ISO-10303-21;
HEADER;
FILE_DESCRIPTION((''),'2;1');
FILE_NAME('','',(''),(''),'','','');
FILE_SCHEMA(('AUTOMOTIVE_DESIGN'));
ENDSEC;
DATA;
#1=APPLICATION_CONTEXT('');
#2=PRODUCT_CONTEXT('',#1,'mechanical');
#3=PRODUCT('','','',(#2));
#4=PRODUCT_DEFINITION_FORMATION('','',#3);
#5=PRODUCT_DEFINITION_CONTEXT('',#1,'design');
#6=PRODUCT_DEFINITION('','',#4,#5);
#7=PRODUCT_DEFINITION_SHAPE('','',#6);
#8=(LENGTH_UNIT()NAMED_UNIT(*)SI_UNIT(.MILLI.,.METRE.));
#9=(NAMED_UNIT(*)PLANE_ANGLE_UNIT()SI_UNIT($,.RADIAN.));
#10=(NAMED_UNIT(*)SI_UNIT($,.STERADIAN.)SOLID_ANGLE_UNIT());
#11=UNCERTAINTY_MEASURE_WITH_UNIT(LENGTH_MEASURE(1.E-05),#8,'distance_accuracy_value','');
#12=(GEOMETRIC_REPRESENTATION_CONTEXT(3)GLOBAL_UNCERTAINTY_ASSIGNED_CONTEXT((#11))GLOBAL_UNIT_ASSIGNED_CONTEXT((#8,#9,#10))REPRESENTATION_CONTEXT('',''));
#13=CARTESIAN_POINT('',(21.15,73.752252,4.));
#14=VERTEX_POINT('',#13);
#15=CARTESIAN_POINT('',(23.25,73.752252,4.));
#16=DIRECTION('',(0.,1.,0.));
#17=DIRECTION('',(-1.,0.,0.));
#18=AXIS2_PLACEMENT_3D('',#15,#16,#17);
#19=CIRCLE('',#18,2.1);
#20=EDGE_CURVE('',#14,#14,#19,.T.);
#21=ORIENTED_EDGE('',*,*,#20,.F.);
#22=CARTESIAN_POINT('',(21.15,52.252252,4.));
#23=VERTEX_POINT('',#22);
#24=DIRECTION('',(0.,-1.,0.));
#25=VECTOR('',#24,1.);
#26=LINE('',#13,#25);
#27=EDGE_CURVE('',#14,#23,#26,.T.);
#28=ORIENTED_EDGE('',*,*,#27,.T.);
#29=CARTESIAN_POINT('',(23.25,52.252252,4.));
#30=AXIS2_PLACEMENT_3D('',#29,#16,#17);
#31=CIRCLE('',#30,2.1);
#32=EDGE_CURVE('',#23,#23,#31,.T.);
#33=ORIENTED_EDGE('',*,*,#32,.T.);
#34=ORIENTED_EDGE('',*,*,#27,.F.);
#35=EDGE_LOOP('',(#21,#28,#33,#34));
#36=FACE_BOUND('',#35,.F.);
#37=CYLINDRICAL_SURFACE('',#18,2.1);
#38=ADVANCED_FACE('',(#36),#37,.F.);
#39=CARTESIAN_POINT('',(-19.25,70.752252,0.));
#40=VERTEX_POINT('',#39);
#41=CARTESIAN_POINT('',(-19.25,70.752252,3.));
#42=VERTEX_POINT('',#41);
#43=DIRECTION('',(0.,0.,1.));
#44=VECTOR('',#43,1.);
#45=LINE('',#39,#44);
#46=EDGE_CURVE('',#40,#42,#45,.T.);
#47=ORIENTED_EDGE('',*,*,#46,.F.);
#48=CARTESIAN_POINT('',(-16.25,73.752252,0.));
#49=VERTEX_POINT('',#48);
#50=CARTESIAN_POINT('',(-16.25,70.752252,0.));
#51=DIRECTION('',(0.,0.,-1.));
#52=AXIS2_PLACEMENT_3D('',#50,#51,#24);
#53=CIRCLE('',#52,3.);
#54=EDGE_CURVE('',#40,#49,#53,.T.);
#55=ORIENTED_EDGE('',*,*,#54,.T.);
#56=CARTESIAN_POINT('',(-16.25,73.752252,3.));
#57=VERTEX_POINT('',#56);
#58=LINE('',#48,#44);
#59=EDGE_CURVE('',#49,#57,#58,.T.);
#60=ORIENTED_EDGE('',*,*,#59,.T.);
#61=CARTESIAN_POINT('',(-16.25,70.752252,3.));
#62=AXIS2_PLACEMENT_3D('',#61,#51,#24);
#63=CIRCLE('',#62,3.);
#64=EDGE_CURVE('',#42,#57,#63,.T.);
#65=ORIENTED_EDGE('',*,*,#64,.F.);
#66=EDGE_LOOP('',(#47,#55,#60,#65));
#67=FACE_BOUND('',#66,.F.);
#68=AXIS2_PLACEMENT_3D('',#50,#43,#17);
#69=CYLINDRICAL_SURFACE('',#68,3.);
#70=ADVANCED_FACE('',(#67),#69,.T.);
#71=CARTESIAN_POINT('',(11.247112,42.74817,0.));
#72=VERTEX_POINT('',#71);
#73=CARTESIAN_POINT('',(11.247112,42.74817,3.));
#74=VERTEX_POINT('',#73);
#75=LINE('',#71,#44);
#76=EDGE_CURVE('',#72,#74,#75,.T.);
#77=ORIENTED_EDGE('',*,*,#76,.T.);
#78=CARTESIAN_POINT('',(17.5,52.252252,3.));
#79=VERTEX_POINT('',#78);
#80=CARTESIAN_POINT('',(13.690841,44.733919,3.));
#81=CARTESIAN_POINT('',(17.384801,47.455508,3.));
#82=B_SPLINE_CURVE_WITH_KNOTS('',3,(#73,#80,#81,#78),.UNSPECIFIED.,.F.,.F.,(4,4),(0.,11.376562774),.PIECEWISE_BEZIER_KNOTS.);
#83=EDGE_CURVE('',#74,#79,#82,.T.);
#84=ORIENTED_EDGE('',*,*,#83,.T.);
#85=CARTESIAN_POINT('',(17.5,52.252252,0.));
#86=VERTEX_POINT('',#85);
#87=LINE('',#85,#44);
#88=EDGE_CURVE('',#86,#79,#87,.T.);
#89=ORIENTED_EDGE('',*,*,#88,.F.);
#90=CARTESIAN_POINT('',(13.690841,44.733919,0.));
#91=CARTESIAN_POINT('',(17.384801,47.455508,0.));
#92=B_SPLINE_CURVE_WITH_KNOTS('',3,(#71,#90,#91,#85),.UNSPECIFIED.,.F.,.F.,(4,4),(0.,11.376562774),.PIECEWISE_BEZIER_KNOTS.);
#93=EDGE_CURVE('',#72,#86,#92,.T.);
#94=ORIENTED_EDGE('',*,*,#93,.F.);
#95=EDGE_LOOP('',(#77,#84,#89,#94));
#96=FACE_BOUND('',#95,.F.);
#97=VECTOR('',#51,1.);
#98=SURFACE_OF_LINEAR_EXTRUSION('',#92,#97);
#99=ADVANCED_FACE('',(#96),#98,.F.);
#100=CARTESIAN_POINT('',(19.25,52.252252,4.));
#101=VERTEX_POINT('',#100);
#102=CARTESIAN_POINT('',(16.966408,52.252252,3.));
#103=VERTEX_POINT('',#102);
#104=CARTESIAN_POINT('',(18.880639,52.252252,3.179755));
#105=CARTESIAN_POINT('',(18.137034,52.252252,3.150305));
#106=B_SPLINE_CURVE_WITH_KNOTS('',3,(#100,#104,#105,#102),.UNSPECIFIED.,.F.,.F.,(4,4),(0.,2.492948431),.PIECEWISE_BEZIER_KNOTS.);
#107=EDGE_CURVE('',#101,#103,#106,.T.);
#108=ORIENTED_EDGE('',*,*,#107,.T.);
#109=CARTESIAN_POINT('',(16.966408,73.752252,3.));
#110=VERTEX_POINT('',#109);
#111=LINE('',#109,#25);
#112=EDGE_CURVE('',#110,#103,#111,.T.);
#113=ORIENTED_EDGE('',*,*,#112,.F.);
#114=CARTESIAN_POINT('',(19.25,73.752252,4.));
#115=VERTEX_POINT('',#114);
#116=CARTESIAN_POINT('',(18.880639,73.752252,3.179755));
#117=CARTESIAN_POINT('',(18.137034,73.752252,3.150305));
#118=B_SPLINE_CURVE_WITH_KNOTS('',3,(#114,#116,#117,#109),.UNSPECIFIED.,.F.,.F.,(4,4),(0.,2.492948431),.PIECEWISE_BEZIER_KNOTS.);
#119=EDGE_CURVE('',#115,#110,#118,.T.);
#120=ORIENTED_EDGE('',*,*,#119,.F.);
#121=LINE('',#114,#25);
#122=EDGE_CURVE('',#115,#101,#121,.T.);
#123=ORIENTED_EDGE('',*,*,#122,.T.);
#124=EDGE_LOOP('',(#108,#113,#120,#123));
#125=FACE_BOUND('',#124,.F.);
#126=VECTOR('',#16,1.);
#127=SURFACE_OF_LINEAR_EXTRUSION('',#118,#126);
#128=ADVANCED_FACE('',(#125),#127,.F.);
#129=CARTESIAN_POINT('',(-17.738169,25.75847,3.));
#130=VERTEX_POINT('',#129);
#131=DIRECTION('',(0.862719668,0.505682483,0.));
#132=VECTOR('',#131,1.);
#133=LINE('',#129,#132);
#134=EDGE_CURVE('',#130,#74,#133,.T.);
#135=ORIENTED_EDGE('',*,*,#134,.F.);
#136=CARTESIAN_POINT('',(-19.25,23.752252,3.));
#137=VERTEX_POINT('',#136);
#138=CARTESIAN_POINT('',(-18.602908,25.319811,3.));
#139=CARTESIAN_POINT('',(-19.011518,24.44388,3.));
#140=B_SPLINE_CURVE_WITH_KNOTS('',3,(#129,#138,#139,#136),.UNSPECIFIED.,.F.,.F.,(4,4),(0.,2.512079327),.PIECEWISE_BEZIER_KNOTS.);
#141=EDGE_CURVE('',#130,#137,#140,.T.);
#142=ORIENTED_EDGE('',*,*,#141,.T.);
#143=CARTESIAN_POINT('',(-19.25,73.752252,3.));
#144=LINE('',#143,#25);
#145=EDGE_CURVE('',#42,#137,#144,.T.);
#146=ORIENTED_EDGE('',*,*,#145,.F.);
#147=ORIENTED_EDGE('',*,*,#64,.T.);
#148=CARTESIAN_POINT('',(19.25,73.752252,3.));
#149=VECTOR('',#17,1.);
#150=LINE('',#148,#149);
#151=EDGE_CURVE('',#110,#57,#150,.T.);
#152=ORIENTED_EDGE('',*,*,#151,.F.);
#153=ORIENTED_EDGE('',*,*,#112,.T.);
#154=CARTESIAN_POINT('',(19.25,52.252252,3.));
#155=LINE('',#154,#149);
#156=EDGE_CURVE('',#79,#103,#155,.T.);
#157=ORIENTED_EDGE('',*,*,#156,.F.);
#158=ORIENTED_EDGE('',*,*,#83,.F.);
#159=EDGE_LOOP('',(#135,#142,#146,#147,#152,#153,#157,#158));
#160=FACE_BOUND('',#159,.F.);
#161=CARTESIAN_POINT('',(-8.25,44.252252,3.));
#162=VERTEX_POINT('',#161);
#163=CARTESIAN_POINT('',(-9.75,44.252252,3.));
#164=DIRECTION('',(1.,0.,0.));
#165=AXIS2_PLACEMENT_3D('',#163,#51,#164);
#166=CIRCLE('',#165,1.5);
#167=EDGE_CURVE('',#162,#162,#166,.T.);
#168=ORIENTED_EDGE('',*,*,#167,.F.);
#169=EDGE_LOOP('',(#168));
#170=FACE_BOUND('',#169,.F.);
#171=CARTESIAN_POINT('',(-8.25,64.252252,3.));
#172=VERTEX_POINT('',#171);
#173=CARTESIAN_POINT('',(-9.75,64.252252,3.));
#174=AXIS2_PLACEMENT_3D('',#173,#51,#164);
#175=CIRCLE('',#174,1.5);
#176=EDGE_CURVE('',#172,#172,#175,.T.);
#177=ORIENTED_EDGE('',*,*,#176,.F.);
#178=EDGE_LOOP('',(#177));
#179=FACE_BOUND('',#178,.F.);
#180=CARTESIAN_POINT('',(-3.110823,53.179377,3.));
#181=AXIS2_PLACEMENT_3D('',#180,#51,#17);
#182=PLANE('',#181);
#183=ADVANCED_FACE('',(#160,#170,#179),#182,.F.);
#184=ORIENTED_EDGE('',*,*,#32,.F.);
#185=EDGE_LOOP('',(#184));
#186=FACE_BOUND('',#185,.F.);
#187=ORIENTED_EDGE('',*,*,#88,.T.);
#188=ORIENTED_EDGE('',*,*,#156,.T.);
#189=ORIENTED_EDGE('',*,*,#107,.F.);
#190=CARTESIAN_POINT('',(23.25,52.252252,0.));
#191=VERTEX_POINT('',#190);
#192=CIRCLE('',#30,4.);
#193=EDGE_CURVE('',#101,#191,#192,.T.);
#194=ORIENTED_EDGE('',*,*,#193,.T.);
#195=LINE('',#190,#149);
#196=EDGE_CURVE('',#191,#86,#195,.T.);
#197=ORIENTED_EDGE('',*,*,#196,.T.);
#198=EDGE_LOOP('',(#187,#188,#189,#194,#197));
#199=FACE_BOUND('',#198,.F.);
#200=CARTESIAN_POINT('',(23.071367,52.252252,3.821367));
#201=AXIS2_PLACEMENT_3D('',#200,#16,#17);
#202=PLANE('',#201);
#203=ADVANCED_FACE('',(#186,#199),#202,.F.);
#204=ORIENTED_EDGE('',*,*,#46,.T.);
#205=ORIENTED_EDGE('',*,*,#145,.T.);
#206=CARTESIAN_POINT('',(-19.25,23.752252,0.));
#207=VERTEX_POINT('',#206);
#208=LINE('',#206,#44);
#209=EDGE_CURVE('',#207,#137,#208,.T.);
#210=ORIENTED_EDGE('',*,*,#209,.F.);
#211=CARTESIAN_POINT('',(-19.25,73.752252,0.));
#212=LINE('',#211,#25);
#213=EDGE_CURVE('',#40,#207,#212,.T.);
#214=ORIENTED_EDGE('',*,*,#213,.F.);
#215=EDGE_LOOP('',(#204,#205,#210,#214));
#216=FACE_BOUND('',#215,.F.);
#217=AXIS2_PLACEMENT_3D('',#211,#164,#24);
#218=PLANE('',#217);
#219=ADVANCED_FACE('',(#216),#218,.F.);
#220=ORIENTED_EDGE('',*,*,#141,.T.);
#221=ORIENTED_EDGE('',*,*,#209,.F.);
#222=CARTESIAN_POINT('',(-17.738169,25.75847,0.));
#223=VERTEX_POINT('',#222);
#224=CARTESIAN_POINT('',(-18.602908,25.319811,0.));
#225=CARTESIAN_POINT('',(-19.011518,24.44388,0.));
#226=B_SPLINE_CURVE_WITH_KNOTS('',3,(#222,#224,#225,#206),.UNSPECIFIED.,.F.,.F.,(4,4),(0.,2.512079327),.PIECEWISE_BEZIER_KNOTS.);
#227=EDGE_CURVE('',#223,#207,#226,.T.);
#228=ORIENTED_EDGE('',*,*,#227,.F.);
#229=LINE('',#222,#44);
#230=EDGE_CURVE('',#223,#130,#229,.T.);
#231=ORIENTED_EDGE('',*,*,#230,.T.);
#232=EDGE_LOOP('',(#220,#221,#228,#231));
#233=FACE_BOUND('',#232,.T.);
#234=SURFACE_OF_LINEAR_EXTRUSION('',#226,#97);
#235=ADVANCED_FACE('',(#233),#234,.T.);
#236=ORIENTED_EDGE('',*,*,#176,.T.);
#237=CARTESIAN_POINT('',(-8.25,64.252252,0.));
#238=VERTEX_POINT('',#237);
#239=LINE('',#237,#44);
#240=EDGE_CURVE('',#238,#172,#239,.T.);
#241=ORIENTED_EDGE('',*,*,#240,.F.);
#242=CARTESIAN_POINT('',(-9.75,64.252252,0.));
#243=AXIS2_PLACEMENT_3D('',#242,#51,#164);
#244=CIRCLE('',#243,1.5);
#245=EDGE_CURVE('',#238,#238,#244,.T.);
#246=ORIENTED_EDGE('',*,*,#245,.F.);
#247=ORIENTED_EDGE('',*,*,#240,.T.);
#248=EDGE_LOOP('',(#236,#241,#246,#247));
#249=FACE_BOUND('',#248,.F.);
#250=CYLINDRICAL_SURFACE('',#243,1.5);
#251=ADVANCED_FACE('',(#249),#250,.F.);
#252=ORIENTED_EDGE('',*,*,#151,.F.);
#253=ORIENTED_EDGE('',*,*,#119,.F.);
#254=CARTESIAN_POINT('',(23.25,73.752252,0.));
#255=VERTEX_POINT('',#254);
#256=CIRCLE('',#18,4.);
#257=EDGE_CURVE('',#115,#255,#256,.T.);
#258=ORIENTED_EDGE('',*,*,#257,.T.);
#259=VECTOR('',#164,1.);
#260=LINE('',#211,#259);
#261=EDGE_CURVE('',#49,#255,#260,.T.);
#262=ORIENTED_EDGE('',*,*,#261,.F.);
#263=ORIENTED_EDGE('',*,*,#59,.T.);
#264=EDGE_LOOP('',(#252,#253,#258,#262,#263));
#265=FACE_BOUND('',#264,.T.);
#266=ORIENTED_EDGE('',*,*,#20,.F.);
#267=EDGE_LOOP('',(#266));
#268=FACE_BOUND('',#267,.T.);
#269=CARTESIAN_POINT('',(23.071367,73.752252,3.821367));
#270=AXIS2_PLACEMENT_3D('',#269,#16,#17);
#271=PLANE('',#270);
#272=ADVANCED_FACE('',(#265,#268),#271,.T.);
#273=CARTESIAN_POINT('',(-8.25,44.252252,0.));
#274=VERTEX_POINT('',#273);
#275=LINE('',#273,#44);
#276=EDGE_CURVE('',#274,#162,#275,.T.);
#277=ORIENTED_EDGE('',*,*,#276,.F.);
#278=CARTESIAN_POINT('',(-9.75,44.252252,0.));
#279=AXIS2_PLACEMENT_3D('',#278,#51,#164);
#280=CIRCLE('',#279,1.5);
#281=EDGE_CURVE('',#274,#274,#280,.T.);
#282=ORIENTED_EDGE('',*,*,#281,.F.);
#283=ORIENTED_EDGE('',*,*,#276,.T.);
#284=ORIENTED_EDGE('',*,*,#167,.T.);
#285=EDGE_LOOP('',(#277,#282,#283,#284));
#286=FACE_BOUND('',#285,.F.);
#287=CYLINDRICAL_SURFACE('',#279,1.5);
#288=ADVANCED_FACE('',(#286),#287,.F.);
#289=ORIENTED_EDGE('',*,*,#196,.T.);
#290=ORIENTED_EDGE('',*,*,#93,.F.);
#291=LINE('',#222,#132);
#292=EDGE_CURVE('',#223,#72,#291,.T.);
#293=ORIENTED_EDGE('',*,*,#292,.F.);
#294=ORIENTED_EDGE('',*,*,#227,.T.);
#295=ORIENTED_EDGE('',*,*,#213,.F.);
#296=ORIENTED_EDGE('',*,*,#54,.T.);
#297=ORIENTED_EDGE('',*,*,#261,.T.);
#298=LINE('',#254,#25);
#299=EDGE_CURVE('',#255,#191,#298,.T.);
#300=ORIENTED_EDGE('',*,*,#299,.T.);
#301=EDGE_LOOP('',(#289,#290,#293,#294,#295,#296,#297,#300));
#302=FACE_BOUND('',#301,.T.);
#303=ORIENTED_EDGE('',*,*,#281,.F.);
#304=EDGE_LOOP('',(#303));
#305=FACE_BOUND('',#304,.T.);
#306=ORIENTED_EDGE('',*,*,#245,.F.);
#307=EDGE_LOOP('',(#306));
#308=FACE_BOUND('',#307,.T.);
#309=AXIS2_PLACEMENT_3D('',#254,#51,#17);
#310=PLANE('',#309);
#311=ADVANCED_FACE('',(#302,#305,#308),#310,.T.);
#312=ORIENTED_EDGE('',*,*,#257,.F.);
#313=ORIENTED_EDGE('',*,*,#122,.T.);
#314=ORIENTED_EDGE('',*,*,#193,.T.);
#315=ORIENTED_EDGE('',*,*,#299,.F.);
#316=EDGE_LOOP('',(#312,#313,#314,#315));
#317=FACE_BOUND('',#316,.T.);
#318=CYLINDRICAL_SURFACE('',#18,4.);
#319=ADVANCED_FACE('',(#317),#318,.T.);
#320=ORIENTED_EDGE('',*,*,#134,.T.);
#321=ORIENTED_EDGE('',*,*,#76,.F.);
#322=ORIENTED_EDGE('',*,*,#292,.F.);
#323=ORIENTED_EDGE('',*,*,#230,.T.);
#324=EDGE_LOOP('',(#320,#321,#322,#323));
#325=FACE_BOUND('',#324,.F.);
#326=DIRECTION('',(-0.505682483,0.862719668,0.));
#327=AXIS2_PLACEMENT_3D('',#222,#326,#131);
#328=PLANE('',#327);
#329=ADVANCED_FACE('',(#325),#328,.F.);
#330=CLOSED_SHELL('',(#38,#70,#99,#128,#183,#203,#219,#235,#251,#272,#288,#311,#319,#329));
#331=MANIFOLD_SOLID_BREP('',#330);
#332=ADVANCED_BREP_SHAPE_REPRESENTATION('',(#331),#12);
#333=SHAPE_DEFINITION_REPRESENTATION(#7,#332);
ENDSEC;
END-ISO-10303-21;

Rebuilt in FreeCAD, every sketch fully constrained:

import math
import FreeCAD as App
import Part
import Sketcher

V = App.Vector


def edges_at(feature, points):
    """Names of the edges that pass closest to the given points."""
    edges = feature.Shape.Edges
    near = lambda p: min(range(len(edges)), key=lambda i: edges[i].distToShape(Part.Vertex(*p))[0])
    return sorted({f"Edge{near(p) + 1}" for p in points})

doc = App.newDocument("Part")
body = doc.addObject("PartDesign::Body", "Body")

# Sketch on XY plane
sketch1 = body.newObject("Sketcher::SketchObject", "Sketch")
sketch1.AttachmentSupport = (doc.getObject("XY_Plane"), [""])
sketch1.MapMode = "FlatFace"
sketch1.addGeometry(Part.BSplineCurve([V(-17.738169, 25.75847, 0), V(-18.602908, 25.319811, 0), V(-19.011518, 24.44388, 0), V(-19.25, 23.752252, 0)], [4, 4], [0, 2.512079327], False, 3, [1, 1, 1, 1], False), False)
sketch1.addGeometry(Part.LineSegment(V(-17.738169, 25.75847, 0), V(11.247112, 42.74817, 0)), False)
sketch1.addGeometry(Part.BSplineCurve([V(11.247112, 42.74817, 0), V(13.690841, 44.733919, 0), V(17.384801, 47.455508, 0), V(17.5, 52.252252, 0)], [4, 4], [0, 11.376562774], False, 3, [1, 1, 1, 1], False), False)
sketch1.addGeometry(Part.LineSegment(V(17.5, 52.252252, 0), V(19.25, 52.252252, 0)), False)
sketch1.addGeometry(Part.LineSegment(V(19.25, 52.252252, 0), V(19.25, 73.752252, 0)), False)
sketch1.addGeometry(Part.LineSegment(V(19.25, 73.752252, 0), V(-19.25, 73.752252, 0)), False)
sketch1.addGeometry(Part.LineSegment(V(-19.25, 73.752252, 0), V(-19.25, 23.752252, 0)), False)
sketch1.addConstraint(Sketcher.Constraint("Block", 0))
sketch1.addConstraint(Sketcher.Constraint("Block", 2))
sketch1.addConstraint(Sketcher.Constraint("Coincident", 0, 1, 1, 1))
sketch1.addConstraint(Sketcher.Constraint("Coincident", 1, 2, 2, 1))
sketch1.addConstraint(Sketcher.Constraint("Coincident", 2, 2, 3, 1))
sketch1.addConstraint(Sketcher.Constraint("Coincident", 3, 2, 4, 1))
sketch1.addConstraint(Sketcher.Constraint("Coincident", 4, 2, 5, 1))
sketch1.addConstraint(Sketcher.Constraint("Coincident", 5, 2, 6, 1))
sketch1.addConstraint(Sketcher.Constraint("Coincident", 6, 2, 0, 2))
sketch1.addConstraint(Sketcher.Constraint("Horizontal", 3))
sketch1.addConstraint(Sketcher.Constraint("Vertical", 4))
sketch1.addConstraint(Sketcher.Constraint("Horizontal", 5))
sketch1.addConstraint(Sketcher.Constraint("Vertical", 6))
sketch1.addConstraint(Sketcher.Constraint("DistanceY", 6, 2, 6, 1, 50.0))
sketch1.addConstraint(Sketcher.Constraint("DistanceX", 5, 2, 5, 1, 38.5))
pad1 = body.newObject("PartDesign::Pad", "Pad")
pad1.Profile = sketch1
pad1.Length = 3

# Sketch on XZ plane
sketch2 = body.newObject("Sketcher::SketchObject", "Sketch001")
sketch2.AttachmentSupport = (doc.getObject("XZ_Plane"), [""])
sketch2.MapMode = "FlatFace"
sketch2.AttachmentOffset = App.Placement(V(0, 0, -73.752252), App.Rotation())
sketch2.addGeometry(Part.ArcOfCircle(Part.Circle(V(23.25, 4, 0), V(0, 0, 1), 4), math.radians(-90), math.radians(180)), False)
sketch2.addGeometry(Part.LineSegment(V(23.25, 0, 0), V(19.25, 0, 0)), False)
sketch2.addGeometry(Part.LineSegment(V(19.25, 0, 0), V(19.25, 3, 0)), False)
sketch2.addGeometry(Part.LineSegment(V(19.25, 3, 0), V(16.966408, 3, 0)), False)
sketch2.addGeometry(Part.BSplineCurve([V(19.25, 4, 0), V(18.880639, 3.179755, 0), V(18.137034, 3.150305, 0), V(16.966408, 3, 0)], [4, 4], [0, 2.492948431], False, 3, [1, 1, 1, 1], False), False)
sketch2.addGeometry(Part.Circle(V(23.25, 4, 0), V(0, 0, 1), 2.1), False)
sketch2.addConstraint(Sketcher.Constraint("Block", 4))
sketch2.addConstraint(Sketcher.Constraint("Tangent", 0, 1, 1, 1))
sketch2.addConstraint(Sketcher.Constraint("Coincident", 1, 2, 2, 1))
sketch2.addConstraint(Sketcher.Constraint("Coincident", 2, 2, 3, 1))
sketch2.addConstraint(Sketcher.Constraint("Coincident", 3, 2, 4, 2))
sketch2.addConstraint(Sketcher.Constraint("Coincident", 4, 1, 0, 2))
sketch2.addConstraint(Sketcher.Constraint("Horizontal", 1))
sketch2.addConstraint(Sketcher.Constraint("Vertical", 2))
sketch2.addConstraint(Sketcher.Constraint("Horizontal", 3))
sketch2.addConstraint(Sketcher.Constraint("Coincident", 5, 3, 0, 3))
sketch2.addConstraint(Sketcher.Constraint("PointOnObject", 0, 1, -1))
sketch2.addConstraint(Sketcher.Constraint("Radius", 0, 4.0))
sketch2.addConstraint(Sketcher.Constraint("Diameter", 5, 4.2))
sketch2.addConstraint(Sketcher.Constraint("DistanceX", 1, 2, 1, 1, 4.0))
pad2 = body.newObject("PartDesign::Pad", "Pad001")
pad2.Profile = sketch2
pad2.Length = 21.5
doc.recompute()

fillet = body.newObject("PartDesign::Fillet", "Fillet")
fillet.Base = (pad2, edges_at(pad2, [(-19.25, 73.752, 1.5)]))
fillet.Radius = 3

# Sketch on XY plane
sketch3 = body.newObject("Sketcher::SketchObject", "Sketch002")
sketch3.AttachmentSupport = (doc.getObject("XY_Plane"), [""])
sketch3.MapMode = "FlatFace"
sketch3.addGeometry(Part.Circle(V(-9.8, 64.3, 0), V(0, 0, 1), 1.5), False)
sketch3.addGeometry(Part.Circle(V(-9.8, 44.3, 0), V(0, 0, 1), 1.5), False)
sketch3.addConstraint(Sketcher.Constraint("Equal", 0, 1))
sketch3.addConstraint(Sketcher.Constraint("Vertical", 0, 3, 1, 3))
sketch3.addConstraint(Sketcher.Constraint("Diameter", 0, 3.0))
sketch3.addConstraint(Sketcher.Constraint("DistanceY", 1, 3, 0, 3, 20.0))
sketch3.addConstraint(Sketcher.Constraint("DistanceX", 0, 3, -1, 1, 9.75))
sketch3.addConstraint(Sketcher.Constraint("DistanceY", -1, 1, 0, 3, 64.252252))
pocket1 = body.newObject("PartDesign::Pocket", "Pocket")
pocket1.Profile = sketch3
pocket1.Length = 3
pocket1.Reversed = True

doc.recompute()
